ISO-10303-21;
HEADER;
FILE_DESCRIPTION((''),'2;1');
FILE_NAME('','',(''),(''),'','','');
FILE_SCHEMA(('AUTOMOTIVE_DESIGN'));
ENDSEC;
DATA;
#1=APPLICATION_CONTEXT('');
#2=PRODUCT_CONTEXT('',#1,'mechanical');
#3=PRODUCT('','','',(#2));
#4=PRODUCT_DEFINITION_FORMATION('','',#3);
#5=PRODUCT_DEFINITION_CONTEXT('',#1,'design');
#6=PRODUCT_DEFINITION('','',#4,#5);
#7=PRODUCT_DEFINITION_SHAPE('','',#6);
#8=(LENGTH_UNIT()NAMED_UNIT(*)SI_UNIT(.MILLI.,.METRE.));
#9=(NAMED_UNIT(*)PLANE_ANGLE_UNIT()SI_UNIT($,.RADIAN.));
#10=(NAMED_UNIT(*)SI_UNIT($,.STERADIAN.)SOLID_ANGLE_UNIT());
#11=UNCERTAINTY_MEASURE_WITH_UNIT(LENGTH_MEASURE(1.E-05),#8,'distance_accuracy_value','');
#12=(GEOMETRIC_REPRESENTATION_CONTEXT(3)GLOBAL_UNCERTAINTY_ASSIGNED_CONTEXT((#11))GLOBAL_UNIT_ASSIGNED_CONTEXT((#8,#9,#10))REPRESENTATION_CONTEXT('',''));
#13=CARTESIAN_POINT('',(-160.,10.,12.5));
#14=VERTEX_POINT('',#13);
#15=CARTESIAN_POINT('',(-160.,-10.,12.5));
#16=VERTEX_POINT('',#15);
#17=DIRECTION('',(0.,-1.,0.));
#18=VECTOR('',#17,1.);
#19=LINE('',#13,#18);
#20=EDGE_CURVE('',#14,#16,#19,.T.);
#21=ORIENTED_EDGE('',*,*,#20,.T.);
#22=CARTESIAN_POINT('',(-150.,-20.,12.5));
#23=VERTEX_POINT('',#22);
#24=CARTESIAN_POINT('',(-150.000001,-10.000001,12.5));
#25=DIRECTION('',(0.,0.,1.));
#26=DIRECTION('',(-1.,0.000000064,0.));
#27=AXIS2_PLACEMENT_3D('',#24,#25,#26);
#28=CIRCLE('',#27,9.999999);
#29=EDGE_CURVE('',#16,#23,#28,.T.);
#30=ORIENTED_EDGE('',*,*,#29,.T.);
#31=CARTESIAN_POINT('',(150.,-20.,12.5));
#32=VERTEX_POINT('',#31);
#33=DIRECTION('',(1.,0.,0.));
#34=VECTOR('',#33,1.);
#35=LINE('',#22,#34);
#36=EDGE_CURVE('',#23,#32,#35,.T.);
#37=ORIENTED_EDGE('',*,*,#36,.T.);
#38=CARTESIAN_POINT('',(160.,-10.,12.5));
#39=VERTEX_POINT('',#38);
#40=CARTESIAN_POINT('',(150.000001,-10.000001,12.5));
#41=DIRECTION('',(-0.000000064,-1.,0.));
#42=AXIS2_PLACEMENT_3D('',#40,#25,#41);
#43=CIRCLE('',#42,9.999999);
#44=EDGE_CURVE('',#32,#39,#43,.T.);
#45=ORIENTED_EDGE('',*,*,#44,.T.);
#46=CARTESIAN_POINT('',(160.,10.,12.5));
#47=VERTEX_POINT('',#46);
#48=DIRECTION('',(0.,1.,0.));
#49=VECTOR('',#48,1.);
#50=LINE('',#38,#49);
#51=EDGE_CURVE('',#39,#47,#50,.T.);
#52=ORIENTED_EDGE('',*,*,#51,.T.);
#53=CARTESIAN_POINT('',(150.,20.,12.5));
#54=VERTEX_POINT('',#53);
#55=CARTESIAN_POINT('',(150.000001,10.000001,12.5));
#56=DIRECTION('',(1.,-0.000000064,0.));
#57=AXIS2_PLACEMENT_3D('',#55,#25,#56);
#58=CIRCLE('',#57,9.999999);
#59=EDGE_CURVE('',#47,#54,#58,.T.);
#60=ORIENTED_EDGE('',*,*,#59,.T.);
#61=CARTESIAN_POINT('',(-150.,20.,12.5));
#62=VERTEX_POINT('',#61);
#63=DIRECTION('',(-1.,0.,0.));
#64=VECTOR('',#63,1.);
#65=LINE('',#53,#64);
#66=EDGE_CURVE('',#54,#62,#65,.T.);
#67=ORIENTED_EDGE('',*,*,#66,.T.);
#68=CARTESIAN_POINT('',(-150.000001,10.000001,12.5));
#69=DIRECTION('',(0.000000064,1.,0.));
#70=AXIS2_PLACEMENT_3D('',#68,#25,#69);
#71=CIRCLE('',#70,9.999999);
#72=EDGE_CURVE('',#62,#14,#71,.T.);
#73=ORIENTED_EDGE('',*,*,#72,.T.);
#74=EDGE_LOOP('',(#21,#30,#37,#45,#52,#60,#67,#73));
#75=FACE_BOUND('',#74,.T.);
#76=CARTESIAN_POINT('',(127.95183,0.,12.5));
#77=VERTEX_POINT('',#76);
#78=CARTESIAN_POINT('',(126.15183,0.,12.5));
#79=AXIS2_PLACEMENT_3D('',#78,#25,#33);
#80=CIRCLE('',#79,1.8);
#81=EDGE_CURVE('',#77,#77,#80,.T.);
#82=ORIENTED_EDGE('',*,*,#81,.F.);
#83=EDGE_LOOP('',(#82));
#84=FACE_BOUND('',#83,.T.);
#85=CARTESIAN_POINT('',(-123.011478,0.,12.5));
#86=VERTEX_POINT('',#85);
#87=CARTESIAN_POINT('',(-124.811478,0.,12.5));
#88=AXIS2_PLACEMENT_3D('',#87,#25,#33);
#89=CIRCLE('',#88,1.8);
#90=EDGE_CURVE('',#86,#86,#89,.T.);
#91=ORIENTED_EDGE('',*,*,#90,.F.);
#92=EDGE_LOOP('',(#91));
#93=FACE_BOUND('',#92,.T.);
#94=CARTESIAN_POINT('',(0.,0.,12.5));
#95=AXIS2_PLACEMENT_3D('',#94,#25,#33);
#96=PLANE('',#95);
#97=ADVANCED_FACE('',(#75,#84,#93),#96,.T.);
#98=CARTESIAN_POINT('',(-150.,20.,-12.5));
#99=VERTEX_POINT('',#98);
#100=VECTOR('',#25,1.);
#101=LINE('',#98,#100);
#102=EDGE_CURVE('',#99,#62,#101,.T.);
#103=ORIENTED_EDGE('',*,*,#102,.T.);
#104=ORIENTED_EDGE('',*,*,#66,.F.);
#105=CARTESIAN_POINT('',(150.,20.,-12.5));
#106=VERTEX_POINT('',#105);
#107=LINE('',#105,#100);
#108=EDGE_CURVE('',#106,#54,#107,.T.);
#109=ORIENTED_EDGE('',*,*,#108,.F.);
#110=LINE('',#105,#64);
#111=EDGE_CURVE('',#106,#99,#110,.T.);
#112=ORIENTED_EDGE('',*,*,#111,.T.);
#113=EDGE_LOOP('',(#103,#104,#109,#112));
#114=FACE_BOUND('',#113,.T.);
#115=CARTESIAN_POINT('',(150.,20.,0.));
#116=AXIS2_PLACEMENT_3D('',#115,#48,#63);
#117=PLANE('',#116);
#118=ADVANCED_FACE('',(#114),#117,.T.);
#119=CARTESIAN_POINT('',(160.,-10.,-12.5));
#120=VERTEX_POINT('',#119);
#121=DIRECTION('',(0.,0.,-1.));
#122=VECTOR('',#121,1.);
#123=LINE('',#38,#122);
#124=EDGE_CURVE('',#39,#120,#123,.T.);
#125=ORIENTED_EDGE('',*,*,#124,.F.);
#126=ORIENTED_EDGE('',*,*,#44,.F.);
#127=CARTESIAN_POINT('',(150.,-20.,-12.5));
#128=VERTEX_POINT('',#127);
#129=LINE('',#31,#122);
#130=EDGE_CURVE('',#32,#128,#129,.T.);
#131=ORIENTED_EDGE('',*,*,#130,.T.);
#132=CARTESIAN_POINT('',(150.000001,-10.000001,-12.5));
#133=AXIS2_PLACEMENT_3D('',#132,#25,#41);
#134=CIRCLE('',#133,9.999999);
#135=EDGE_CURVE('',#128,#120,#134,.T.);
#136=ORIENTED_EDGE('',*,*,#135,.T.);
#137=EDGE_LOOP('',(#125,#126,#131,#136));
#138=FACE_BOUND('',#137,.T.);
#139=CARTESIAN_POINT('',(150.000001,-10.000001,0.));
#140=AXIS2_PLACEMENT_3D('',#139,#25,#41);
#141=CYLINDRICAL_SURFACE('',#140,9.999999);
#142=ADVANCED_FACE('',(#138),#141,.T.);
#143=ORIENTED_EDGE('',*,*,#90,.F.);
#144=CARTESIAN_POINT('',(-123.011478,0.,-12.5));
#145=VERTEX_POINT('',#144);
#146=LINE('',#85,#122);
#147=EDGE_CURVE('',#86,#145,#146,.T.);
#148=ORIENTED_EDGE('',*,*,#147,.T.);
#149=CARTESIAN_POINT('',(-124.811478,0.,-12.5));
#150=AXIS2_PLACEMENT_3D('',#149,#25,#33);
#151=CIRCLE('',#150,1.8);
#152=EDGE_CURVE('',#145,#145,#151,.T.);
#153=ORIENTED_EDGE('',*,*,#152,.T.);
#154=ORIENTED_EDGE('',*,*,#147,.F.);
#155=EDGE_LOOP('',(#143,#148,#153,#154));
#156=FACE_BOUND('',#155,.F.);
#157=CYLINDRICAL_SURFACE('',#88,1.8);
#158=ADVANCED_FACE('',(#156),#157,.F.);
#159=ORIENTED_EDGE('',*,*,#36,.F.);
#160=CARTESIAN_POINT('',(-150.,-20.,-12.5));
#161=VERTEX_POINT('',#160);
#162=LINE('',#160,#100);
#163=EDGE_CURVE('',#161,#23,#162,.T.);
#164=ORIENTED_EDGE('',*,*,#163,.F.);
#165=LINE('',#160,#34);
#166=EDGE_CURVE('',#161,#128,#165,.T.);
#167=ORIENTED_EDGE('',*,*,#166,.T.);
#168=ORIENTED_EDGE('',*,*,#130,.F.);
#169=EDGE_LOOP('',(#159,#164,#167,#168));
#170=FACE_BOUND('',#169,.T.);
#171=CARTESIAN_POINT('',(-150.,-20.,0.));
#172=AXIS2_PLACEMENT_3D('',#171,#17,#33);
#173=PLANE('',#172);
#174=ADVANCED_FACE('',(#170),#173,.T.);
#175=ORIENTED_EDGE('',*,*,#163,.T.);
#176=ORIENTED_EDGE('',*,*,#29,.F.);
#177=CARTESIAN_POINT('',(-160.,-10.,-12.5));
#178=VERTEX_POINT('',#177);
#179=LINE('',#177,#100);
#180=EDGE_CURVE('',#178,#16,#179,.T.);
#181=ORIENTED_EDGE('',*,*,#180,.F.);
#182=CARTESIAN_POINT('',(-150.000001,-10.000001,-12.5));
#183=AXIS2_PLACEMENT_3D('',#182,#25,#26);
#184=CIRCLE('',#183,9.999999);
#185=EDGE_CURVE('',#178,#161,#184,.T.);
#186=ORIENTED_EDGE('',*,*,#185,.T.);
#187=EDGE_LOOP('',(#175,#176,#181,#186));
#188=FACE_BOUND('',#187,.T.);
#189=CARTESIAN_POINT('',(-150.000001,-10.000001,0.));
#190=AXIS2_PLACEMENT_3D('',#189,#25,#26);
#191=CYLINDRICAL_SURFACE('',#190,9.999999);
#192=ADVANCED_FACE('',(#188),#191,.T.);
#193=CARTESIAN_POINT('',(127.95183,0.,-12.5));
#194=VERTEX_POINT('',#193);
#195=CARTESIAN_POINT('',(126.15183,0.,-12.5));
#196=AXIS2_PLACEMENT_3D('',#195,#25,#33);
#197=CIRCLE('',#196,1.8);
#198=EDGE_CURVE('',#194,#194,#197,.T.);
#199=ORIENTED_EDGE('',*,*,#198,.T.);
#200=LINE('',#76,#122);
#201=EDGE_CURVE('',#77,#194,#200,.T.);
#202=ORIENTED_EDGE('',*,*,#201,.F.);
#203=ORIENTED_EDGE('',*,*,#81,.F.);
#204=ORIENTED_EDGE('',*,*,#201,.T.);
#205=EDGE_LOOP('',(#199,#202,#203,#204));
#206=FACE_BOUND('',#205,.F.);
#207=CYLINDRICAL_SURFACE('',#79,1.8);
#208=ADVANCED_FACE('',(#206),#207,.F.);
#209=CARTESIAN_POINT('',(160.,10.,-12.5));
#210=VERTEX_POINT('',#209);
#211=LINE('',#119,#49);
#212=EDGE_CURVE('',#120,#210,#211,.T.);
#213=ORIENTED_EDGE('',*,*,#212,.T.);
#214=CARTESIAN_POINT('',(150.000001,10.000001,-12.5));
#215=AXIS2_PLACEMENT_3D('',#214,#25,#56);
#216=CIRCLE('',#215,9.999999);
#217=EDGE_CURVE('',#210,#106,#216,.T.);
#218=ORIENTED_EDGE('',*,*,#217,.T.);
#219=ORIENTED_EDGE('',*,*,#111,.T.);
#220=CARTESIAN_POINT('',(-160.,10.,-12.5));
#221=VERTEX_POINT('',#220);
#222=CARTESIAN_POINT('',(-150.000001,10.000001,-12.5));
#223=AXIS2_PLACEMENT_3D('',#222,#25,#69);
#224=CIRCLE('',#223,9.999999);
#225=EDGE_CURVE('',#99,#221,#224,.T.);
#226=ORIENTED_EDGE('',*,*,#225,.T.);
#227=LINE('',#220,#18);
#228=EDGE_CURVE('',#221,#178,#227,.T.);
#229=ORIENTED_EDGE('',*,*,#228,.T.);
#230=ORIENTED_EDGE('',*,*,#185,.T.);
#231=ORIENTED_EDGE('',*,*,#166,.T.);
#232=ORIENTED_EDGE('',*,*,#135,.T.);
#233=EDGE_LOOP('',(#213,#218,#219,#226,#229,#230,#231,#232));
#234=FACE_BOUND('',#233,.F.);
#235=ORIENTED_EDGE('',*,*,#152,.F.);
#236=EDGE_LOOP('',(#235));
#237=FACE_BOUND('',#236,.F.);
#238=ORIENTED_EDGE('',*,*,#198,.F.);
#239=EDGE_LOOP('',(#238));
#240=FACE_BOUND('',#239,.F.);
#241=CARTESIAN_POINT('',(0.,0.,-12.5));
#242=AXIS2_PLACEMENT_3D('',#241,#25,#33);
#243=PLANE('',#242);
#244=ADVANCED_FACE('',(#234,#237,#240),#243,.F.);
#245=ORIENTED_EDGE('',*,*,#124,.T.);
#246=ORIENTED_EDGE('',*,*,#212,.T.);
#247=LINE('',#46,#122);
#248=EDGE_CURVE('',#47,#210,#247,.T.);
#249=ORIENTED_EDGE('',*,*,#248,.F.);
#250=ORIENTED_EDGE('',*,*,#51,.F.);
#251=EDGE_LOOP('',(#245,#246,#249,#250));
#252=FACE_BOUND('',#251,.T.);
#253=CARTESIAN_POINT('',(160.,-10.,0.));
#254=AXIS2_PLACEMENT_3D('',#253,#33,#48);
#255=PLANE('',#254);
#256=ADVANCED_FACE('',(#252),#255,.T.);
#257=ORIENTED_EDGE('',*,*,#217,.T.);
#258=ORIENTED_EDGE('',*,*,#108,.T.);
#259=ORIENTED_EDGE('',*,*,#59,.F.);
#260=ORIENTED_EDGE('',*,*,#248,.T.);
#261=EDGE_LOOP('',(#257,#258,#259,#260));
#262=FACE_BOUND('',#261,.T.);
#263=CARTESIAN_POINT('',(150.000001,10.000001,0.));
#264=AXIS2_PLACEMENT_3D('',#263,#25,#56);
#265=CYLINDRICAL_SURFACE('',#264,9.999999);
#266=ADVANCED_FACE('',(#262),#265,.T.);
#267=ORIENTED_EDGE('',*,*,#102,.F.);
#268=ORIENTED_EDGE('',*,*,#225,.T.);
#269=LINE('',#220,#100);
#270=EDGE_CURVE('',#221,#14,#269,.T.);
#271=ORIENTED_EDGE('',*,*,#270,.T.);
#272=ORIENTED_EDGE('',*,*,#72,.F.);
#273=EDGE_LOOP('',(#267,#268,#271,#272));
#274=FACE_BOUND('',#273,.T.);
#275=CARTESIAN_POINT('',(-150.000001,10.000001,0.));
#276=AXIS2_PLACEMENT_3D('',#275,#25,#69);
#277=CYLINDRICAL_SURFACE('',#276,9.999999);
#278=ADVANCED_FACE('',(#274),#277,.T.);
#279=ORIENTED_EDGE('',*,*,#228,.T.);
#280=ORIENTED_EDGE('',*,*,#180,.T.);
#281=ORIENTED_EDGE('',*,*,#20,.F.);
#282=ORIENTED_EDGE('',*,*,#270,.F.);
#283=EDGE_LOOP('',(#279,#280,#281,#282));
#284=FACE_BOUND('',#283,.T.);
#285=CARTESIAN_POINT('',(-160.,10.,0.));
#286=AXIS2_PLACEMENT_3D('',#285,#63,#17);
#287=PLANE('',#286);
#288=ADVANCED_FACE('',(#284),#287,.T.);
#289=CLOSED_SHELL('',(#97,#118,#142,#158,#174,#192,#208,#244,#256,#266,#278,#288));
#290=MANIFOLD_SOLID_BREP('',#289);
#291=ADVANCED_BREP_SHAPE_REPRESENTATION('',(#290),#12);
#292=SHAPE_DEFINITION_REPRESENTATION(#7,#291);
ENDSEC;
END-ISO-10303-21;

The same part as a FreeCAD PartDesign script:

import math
import FreeCAD as App
import Part
import Sketcher

doc = App.newDocument("Part")
params = doc.addObject("Spreadsheet::Sheet", "Params")
for row, (alias, value) in enumerate([
    ("sketch1_radius", "9.999999 mm"),
    ("sketch1_width", "300 mm"),
    ("sketch1_height", "20 mm"),
    ("pad1_length", "25 mm"),
    ("sketch2_diameter", "3.6 mm"),
    ("pocket1_length", "26 mm"),
    ("sketch3_diameter", "3.6 mm"),
    ("pocket2_length", "26 mm"),
], start=1):
    params.set(f"A{row}", alias)
    params.set(f"B{row}", "=" + value)
    params.setAlias(f"B{row}", alias)

body = doc.addObject("PartDesign::Body", "Body")

# Sketch on XY plane
sketch1 = doc.addObject("Sketcher::SketchObject", "Sketch")
body.addObject(sketch1)
sketch1.AttachmentSupport = (doc.XY_Plane, [""])
sketch1.MapMode = "FlatFace"
sketch1.addGeometry([
    Part.ArcOfCircle(Part.Circle(App.Vector(150.000001, 10.000001, 0), App.Vector(0, 0, 1), 9.999999), math.radians(-0.000004), math.radians(90.000004)),  # 0
    Part.LineSegment(App.Vector(150, 20, 0), App.Vector(-150, 20, 0)),  # 1
    Part.ArcOfCircle(Part.Circle(App.Vector(-150.000001, 10.000001, 0), App.Vector(0, 0, 1), 9.999999), math.radians(89.999996), math.radians(180.000004)),  # 2
    Part.LineSegment(App.Vector(-160, 10, 0), App.Vector(-160, -10, 0)),  # 3
    Part.ArcOfCircle(Part.Circle(App.Vector(-150.000001, -10.000001, 0), App.Vector(0, 0, 1), 9.999999), math.radians(179.999996), math.radians(270.000004)),  # 4
    Part.LineSegment(App.Vector(-150, -20, 0), App.Vector(150, -20, 0)),  # 5
    Part.ArcOfCircle(Part.Circle(App.Vector(150.000001, -10.000001, 0), App.Vector(0, 0, 1), 9.999999), math.radians(-90.000004), math.radians(0.000004)),  # 6
    Part.LineSegment(App.Vector(160, -10, 0), App.Vector(160, 10, 0)),  # 7
], False)
sketch1.addConstraint([
    Sketcher.Constraint("Tangent", 0, 2, 1, 1),
    Sketcher.Constraint("Tangent", 1, 2, 2, 1),
    Sketcher.Constraint("Tangent", 2, 2, 3, 1),
    Sketcher.Constraint("Tangent", 3, 2, 4, 1),
    Sketcher.Constraint("Tangent", 4, 2, 5, 1),
    Sketcher.Constraint("Tangent", 5, 2, 6, 1),
    Sketcher.Constraint("Tangent", 6, 2, 7, 1),
    Sketcher.Constraint("Tangent", 7, 2, 0, 1),
    Sketcher.Constraint("Horizontal", 1),
    Sketcher.Constraint("Vertical", 3),
    Sketcher.Constraint("Horizontal", 5),
    Sketcher.Constraint("Vertical", 7),
    Sketcher.Constraint("Equal", 0, 2),
    Sketcher.Constraint("Equal", 2, 4),
    Sketcher.Constraint("Equal", 4, 6),
    Sketcher.Constraint("Symmetric", 0, 3, 4, 3, -1, 1),
    Sketcher.Constraint("Radius", 0, 9.999999),
    Sketcher.Constraint("DistanceX", 1, 2, 1, 1, 300.0),
    Sketcher.Constraint("DistanceY", 3, 2, 3, 1, 20.0),
])
sketch1.setExpression("Constraints[16]", "Params.sketch1_radius")
sketch1.setExpression("Constraints[17]", "Params.sketch1_width")
sketch1.setExpression("Constraints[18]", "Params.sketch1_height")
pad1 = doc.addObject("PartDesign::Pad", "Pad")
body.addObject(pad1)
pad1.Profile = sketch1
pad1.setExpression("Length", "Params.pad1_length")
pad1.Midplane = True

# Sketch on XY plane
sketch2 = doc.addObject("Sketcher::SketchObject", "Sketch001")
body.addObject(sketch2)
sketch2.AttachmentSupport = (doc.XY_Plane, [""])
sketch2.MapMode = "FlatFace"
sketch2.AttachmentOffset = App.Placement(App.Vector(0, 0, 12.5), App.Rotation())
sketch2.addGeometry(Part.Circle(App.Vector(-124.811478, 0, 0), App.Vector(0, 0, 1), 1.8), False)
sketch2.addConstraint([
    Sketcher.Constraint("PointOnObject", 0, 3, -1),
    Sketcher.Constraint("Diameter", 0, 3.6),
    Sketcher.Constraint("DistanceX", 0, 3, -1, 1, 124.811478),
])
sketch2.setExpression("Constraints[1]", "Params.sketch2_diameter")
pocket1 = doc.addObject("PartDesign::Pocket", "Pocket")
body.addObject(pocket1)
pocket1.Profile = sketch2
pocket1.setExpression("Length", "Params.pocket1_length")

# Sketch on XY plane
sketch3 = doc.addObject("Sketcher::SketchObject", "Sketch002")
body.addObject(sketch3)
sketch3.AttachmentSupport = (doc.XY_Plane, [""])
sketch3.MapMode = "FlatFace"
sketch3.AttachmentOffset = App.Placement(App.Vector(0, 0, 12.5), App.Rotation())
sketch3.addGeometry(Part.Circle(App.Vector(126.15183, 0, 0), App.Vector(0, 0, 1), 1.8), False)
sketch3.addConstraint([
    Sketcher.Constraint("PointOnObject", 0, 3, -1),
    Sketcher.Constraint("Diameter", 0, 3.6),
    Sketcher.Constraint("DistanceX", -1, 1, 0, 3, 126.15183),
])
sketch3.setExpression("Constraints[1]", "Params.sketch3_diameter")
pocket2 = doc.addObject("PartDesign::Pocket", "Pocket001")
body.addObject(pocket2)
pocket2.Profile = sketch3
pocket2.setExpression("Length", "Params.pocket2_length")

doc.recompute()
